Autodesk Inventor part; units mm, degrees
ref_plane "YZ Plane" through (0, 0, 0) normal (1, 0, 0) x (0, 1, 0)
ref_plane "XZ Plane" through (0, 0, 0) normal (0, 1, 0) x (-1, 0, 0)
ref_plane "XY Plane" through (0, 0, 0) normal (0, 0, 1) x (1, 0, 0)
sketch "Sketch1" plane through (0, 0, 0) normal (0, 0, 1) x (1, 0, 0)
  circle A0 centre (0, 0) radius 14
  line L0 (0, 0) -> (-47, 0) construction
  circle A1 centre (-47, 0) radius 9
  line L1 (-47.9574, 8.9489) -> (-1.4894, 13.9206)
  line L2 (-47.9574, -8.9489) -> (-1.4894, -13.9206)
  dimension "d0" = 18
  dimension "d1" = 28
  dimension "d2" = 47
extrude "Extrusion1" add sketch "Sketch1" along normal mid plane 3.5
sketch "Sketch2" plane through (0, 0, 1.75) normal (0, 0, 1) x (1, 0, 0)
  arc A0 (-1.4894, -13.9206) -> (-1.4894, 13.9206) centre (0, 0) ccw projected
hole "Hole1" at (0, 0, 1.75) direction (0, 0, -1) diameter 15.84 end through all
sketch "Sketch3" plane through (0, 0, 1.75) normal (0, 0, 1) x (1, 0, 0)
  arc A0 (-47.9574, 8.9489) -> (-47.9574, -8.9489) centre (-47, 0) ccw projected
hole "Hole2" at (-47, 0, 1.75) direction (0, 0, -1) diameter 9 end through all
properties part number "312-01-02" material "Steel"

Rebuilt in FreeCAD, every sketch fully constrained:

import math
import FreeCAD as App
import Part
import Sketcher

V = App.Vector
Q = App.Units.Quantity

doc = App.newDocument("Part")
body = doc.addObject("PartDesign::Body", "Body")

sketch1 = body.newObject("Sketcher::SketchObject", "Sketch")
sketch1.AttachmentSupport = (doc.getObject("XY_Plane"), [""])
sketch1.MapMode = "FlatFace"
sketch1.addGeometry([
    Part.ArcOfCircle(Part.Circle(V(0, 0, 0), V(0, 0, 1), 14), math.radians(-96), math.radians(96)),
    Part.LineSegment(V(-1, 14, 0), V(-48, 9, 0)),
    Part.ArcOfCircle(Part.Circle(V(-47, 0, 0), V(0, 0, 1), 9), math.radians(96), math.radians(264)),
    Part.LineSegment(V(-48, -9, 0), V(-1, -14, 0)),
], False)
sketch1.addConstraint([
    Sketcher.Constraint("Tangent", 0, 2, 1, 1),
    Sketcher.Constraint("Tangent", 1, 2, 2, 1),
    Sketcher.Constraint("Tangent", 2, 2, 3, 1),
    Sketcher.Constraint("Tangent", 3, 2, 0, 1),
    Sketcher.Constraint("Coincident", 0, 3, -1, 1),
    Sketcher.Constraint("PointOnObject", 2, 3, -1),
    Sketcher.Constraint("Radius", 0, Q("14 mm")),
    Sketcher.Constraint("Radius", 2, Q("9 mm")),
    Sketcher.Constraint("DistanceX", 2, 3, -1, 1, Q("47 mm")),
])
pad1 = body.newObject("PartDesign::Pad", "Pad")
pad1.Profile = sketch1
pad1.Length = 3.5
pad1.Midplane = True

sketch2 = body.newObject("Sketcher::SketchObject", "Sketch001")
sketch2.AttachmentSupport = (doc.getObject("XY_Plane"), [""])
sketch2.MapMode = "FlatFace"
sketch2.AttachmentOffset = App.Placement(V(0, 0, 1.75), App.Rotation())
sketch2.addGeometry(Part.Circle(V(0, 0, 0), V(0, 0, 1), 8), False)
sketch2.addConstraint([
    Sketcher.Constraint("Coincident", 0, 3, -1, 1),
    Sketcher.Constraint("Diameter", 0, Q("15.84 mm")),
])
doc.recompute()
hole = body.newObject("PartDesign::Hole", "Hole")
hole.Profile = sketch2
hole.ThreadType = "None"
hole.Diameter = 15.84
hole.DepthType = "ThroughAll"

sketch3 = body.newObject("Sketcher::SketchObject", "Sketch002")
sketch3.AttachmentSupport = (doc.getObject("XY_Plane"), [""])
sketch3.MapMode = "FlatFace"
sketch3.AttachmentOffset = App.Placement(V(0, 0, 1.75), App.Rotation())
sketch3.addGeometry(Part.Circle(V(-47, 0, 0), V(0, 0, 1), 4.5), False)
sketch3.addConstraint([
    Sketcher.Constraint("PointOnObject", 0, 3, -1),
    Sketcher.Constraint("Diameter", 0, Q("9 mm")),
    Sketcher.Constraint("DistanceX", 0, 3, -1, 1, Q("47 mm")),
])
doc.recompute()
hole2 = body.newObject("PartDesign::Hole", "Hole001")
hole2.Profile = sketch3
hole2.ThreadType = "None"
hole2.Diameter = 9
hole2.DepthType = "ThroughAll"

doc.recompute()
